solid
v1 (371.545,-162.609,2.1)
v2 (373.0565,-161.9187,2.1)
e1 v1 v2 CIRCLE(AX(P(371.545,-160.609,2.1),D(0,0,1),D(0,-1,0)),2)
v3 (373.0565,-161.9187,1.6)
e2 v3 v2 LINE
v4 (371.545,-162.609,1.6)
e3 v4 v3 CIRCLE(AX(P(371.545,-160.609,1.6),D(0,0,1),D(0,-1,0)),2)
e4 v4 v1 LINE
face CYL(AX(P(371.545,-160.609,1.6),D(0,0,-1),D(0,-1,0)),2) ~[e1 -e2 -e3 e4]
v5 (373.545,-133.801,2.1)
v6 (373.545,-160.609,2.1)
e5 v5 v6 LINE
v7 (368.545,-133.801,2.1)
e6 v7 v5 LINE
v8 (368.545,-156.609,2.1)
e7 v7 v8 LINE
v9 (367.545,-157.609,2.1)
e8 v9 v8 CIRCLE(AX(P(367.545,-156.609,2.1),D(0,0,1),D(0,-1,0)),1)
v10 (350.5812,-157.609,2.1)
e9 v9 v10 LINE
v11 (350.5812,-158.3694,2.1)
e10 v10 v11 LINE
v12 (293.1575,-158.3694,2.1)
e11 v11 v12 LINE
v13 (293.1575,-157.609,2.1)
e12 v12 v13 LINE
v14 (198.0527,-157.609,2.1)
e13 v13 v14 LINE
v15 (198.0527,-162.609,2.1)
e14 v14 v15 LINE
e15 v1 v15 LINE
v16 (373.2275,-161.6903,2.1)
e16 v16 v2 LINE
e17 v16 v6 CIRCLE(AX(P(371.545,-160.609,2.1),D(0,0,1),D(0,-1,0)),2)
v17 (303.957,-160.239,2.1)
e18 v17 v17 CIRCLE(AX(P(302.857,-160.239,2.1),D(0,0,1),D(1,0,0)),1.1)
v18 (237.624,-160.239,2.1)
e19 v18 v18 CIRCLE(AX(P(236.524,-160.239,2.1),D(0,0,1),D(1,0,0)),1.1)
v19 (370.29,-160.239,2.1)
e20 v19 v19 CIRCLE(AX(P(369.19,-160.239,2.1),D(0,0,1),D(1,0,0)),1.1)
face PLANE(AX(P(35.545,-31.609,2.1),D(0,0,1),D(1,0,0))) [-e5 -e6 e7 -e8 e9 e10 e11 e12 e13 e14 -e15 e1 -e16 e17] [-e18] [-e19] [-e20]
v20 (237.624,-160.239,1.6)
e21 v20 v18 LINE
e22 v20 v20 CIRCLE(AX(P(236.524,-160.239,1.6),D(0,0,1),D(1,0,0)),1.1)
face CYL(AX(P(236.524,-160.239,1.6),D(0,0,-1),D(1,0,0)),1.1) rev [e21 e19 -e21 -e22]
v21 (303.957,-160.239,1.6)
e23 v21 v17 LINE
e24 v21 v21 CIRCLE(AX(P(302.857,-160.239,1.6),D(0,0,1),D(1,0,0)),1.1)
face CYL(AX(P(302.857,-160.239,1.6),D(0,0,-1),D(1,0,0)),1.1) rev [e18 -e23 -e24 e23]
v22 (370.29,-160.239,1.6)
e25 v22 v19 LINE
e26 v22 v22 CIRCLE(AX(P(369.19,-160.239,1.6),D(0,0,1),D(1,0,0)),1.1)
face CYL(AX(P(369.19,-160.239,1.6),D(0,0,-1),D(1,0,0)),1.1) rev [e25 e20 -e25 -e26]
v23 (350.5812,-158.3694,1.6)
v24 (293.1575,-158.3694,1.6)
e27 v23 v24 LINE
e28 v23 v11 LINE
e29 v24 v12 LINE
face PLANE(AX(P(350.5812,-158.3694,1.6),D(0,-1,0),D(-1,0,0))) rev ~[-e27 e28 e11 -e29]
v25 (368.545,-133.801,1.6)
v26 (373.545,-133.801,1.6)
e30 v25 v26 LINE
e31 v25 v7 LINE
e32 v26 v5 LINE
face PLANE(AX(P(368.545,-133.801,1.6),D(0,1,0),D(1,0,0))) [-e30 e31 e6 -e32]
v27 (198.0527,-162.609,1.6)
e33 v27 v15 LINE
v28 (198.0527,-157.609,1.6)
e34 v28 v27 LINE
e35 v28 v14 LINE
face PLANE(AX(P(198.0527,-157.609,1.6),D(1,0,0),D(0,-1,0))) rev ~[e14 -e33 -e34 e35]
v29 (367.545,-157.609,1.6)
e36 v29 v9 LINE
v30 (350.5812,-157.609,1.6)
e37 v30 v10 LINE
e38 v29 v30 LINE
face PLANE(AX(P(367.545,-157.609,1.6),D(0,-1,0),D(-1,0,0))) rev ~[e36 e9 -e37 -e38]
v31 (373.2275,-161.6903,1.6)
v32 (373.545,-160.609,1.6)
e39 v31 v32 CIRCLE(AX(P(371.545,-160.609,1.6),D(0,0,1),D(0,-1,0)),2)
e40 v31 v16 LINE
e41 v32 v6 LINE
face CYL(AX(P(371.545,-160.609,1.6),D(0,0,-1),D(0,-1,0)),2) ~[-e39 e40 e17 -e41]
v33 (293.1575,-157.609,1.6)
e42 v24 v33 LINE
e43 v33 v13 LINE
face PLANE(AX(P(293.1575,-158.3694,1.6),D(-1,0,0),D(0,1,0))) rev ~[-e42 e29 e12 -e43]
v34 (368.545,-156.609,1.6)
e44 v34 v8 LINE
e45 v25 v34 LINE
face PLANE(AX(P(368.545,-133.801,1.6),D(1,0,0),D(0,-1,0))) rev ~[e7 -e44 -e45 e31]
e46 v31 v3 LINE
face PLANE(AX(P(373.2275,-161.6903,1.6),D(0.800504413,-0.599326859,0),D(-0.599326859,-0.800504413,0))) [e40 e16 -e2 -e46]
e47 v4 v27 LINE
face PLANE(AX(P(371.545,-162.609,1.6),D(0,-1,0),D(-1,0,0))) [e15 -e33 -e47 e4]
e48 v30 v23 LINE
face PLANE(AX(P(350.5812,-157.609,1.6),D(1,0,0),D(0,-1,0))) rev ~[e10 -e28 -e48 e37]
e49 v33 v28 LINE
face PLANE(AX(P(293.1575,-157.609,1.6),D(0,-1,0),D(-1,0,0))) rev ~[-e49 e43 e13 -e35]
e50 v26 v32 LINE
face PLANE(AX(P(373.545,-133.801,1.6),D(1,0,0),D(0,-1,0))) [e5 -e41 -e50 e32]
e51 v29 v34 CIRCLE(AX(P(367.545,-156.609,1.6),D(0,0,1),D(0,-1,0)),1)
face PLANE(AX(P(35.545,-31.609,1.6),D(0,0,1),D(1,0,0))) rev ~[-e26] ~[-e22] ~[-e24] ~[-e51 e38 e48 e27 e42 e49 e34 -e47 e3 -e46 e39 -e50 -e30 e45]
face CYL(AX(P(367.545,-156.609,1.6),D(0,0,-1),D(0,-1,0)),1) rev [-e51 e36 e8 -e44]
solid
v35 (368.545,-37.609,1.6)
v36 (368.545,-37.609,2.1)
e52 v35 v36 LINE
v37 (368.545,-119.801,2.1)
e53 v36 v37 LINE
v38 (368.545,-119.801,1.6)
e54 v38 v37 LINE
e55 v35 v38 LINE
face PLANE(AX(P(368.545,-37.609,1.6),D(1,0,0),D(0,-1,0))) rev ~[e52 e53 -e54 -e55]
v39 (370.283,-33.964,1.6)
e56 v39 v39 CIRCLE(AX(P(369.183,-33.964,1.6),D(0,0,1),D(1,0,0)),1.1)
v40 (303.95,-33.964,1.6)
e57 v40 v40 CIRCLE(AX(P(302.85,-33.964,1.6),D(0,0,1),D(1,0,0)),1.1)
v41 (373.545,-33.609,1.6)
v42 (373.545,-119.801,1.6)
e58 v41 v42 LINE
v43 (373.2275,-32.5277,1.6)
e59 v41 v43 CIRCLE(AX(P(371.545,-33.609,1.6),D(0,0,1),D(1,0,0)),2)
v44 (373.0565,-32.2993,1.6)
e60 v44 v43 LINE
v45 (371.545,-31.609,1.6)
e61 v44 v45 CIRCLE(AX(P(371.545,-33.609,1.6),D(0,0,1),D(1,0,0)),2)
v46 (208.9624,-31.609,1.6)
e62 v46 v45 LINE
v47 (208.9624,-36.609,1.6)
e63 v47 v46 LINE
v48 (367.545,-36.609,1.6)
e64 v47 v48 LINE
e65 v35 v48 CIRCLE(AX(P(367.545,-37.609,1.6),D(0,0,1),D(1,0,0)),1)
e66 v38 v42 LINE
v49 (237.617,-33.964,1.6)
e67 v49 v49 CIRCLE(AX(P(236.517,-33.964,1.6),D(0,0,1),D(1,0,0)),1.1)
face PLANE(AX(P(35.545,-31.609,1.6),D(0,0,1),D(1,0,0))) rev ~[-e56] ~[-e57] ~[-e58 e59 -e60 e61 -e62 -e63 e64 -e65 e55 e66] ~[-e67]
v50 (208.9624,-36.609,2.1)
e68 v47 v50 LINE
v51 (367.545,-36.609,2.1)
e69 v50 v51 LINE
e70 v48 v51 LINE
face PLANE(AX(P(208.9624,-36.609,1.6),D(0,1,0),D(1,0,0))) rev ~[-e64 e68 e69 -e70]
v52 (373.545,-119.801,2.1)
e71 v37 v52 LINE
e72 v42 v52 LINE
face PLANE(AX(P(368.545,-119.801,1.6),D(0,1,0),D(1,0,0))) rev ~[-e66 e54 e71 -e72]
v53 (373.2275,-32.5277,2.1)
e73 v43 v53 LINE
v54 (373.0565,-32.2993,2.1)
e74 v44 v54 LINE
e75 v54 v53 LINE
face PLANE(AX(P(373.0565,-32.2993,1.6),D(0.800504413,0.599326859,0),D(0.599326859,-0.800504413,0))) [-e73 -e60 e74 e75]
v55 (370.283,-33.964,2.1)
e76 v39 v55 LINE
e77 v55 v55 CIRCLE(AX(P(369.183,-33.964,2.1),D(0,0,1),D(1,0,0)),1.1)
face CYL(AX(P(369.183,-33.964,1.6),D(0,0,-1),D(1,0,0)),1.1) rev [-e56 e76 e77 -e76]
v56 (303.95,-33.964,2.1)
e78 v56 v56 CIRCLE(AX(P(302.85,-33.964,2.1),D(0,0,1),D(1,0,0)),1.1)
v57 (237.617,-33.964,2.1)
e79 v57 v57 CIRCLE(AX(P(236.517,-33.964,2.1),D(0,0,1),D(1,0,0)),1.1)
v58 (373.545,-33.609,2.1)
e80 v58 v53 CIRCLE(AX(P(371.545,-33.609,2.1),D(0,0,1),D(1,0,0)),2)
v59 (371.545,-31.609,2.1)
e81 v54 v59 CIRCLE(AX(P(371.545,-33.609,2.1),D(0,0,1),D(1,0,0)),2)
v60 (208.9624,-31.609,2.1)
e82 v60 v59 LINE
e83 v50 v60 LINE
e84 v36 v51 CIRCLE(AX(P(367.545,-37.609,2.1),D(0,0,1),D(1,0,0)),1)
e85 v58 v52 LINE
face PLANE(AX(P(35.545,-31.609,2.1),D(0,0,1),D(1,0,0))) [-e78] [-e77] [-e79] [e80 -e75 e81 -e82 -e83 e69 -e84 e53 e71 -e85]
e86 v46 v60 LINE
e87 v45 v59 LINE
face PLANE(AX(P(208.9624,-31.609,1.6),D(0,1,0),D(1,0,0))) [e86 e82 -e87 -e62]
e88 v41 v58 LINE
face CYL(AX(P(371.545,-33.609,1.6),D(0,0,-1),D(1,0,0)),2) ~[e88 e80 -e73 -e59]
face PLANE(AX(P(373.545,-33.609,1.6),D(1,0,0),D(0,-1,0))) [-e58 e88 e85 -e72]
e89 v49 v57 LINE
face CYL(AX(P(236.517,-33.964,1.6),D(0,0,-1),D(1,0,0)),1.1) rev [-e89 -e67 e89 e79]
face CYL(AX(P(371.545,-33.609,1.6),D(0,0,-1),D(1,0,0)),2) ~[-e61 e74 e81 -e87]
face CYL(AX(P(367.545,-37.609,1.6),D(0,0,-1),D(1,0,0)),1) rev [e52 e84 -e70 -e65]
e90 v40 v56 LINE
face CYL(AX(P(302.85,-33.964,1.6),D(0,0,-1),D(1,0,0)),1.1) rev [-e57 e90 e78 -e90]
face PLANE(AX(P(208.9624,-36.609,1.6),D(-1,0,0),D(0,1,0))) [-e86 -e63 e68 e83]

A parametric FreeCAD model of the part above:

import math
import FreeCAD as App
import Part
import Sketcher
from FreeCAD import Vector

doc = App.newDocument("Part")
body = doc.addObject("PartDesign::Body", "Body")
body.AllowCompound = True

# Sketch on XY plane
sketch1 = body.newObject("Sketcher::SketchObject", "Sketch")
sketch1.AttachmentSupport = (doc.getObject("XY_Plane"), [""])
sketch1.MapMode = "FlatFace"
sketch1.AttachmentOffset = App.Placement(Vector(0, 0, 1.6), App.Rotation())
sketch1.addGeometry([
    Part.LineSegment(Vector(371.55, -31.61, 0), Vector(208.96, -31.61, 0)),  # 0
    Part.LineSegment(Vector(208.96, -31.61, 0), Vector(208.96, -36.61, 0)),  # 1
    Part.LineSegment(Vector(208.96, -36.61, 0), Vector(367.55, -36.61, 0)),  # 2
    Part.ArcOfCircle(Part.Circle(Vector(367.55, -37.61, 0), Vector(0, 0, 1), 1), math.radians(0), math.radians(90)),  # 3
    Part.LineSegment(Vector(368.55, -37.61, 0), Vector(368.55, -119.8, 0)),  # 4
    Part.LineSegment(Vector(368.55, -119.8, 0), Vector(373.55, -119.8, 0)),  # 5
    Part.LineSegment(Vector(373.55, -119.8, 0), Vector(373.55, -33.61, 0)),  # 6
    Part.ArcOfCircle(Part.Circle(Vector(371.55, -33.61, 0), Vector(0, 0, 1), 2), math.radians(0), math.radians(33)),  # 7
    Part.LineSegment(Vector(373.23, -32.53, 0), Vector(373.06, -32.3, 0)),  # 8
    Part.ArcOfCircle(Part.Circle(Vector(371.55, -33.61, 0), Vector(0, 0, 1), 2), math.radians(41), math.radians(90)),  # 9
    Part.Circle(Vector(236.52, -33.96, 0), Vector(0, 0, 1), 1.1),  # 10
    Part.Circle(Vector(302.85, -33.96, 0), Vector(0, 0, 1), 1.1),  # 11
    Part.Circle(Vector(369.18, -33.96, 0), Vector(0, 0, 1), 1.1),  # 12
    Part.LineSegment(Vector(198.05, -157.61, 0), Vector(198.05, -162.61, 0)),  # 13
    Part.LineSegment(Vector(198.05, -162.61, 0), Vector(371.55, -162.61, 0)),  # 14
    Part.ArcOfCircle(Part.Circle(Vector(371.55, -160.61, 0), Vector(0, 0, 1), 2), math.radians(-90), math.radians(-41)),  # 15
    Part.LineSegment(Vector(373.06, -161.92, 0), Vector(373.23, -161.69, 0)),  # 16
    Part.ArcOfCircle(Part.Circle(Vector(371.55, -160.61, 0), Vector(0, 0, 1), 2), math.radians(-33), math.radians(0)),  # 17
    Part.LineSegment(Vector(373.55, -160.61, 0), Vector(373.55, -133.8, 0)),  # 18
    Part.LineSegment(Vector(373.55, -133.8, 0), Vector(368.55, -133.8, 0)),  # 19
    Part.LineSegment(Vector(368.55, -133.8, 0), Vector(368.55, -156.61, 0)),  # 20
    Part.ArcOfCircle(Part.Circle(Vector(367.55, -156.61, 0), Vector(0, 0, 1), 1), math.radians(-90), math.radians(0)),  # 21
    Part.LineSegment(Vector(367.55, -157.61, 0), Vector(350.58, -157.61, 0)),  # 22
    Part.LineSegment(Vector(350.58, -157.61, 0), Vector(350.58, -158.37, 0)),  # 23
    Part.LineSegment(Vector(350.58, -158.37, 0), Vector(293.16, -158.37, 0)),  # 24
    Part.LineSegment(Vector(293.16, -158.37, 0), Vector(293.16, -157.61, 0)),  # 25
    Part.LineSegment(Vector(293.16, -157.61, 0), Vector(198.05, -157.61, 0)),  # 26
    Part.Circle(Vector(236.52, -160.24, 0), Vector(0, 0, 1), 1.1),  # 27
    Part.Circle(Vector(302.86, -160.24, 0), Vector(0, 0, 1), 1.1),  # 28
    Part.Circle(Vector(369.19, -160.24, 0), Vector(0, 0, 1), 1.1),  # 29
], False)
sketch1.addConstraint([
    Sketcher.Constraint("Coincident", 0, 2, 1, 1),
    Sketcher.Constraint("Coincident", 1, 2, 2, 1),
    Sketcher.Constraint("Tangent", 2, 2, 3, 2),
    Sketcher.Constraint("Tangent", 3, 1, 4, 1),
    Sketcher.Constraint("Coincident", 4, 2, 5, 1),
    Sketcher.Constraint("Coincident", 5, 2, 6, 1),
    Sketcher.Constraint("Tangent", 6, 2, 7, 1),
    Sketcher.Constraint("Coincident", 7, 2, 8, 1),
    Sketcher.Constraint("Coincident", 8, 2, 9, 1),
    Sketcher.Constraint("Tangent", 9, 2, 0, 1),
    Sketcher.Constraint("Coincident", 13, 2, 14, 1),
    Sketcher.Constraint("Tangent", 14, 2, 15, 1),
    Sketcher.Constraint("Coincident", 15, 2, 16, 1),
    Sketcher.Constraint("Coincident", 16, 2, 17, 1),
    Sketcher.Constraint("Tangent", 17, 2, 18, 1),
    Sketcher.Constraint("Coincident", 18, 2, 19, 1),
    Sketcher.Constraint("Coincident", 19, 2, 20, 1),
    Sketcher.Constraint("Tangent", 20, 2, 21, 2),
    Sketcher.Constraint("Tangent", 21, 1, 22, 1),
    Sketcher.Constraint("Coincident", 22, 2, 23, 1),
    Sketcher.Constraint("Coincident", 23, 2, 24, 1),
    Sketcher.Constraint("Coincident", 24, 2, 25, 1),
    Sketcher.Constraint("Coincident", 25, 2, 26, 1),
    Sketcher.Constraint("Coincident", 26, 2, 13, 1),
    Sketcher.Constraint("Horizontal", 0),
    Sketcher.Constraint("Vertical", 1),
    Sketcher.Constraint("Horizontal", 2),
    Sketcher.Constraint("Vertical", 4),
    Sketcher.Constraint("Horizontal", 5),
    Sketcher.Constraint("Vertical", 6),
    Sketcher.Constraint("Vertical", 13),
    Sketcher.Constraint("Horizontal", 14),
    Sketcher.Constraint("Vertical", 18),
    Sketcher.Constraint("Horizontal", 19),
    Sketcher.Constraint("Vertical", 20),
    Sketcher.Constraint("Horizontal", 22),
    Sketcher.Constraint("Vertical", 23),
    Sketcher.Constraint("Horizontal", 24),
    Sketcher.Constraint("Vertical", 25),
    Sketcher.Constraint("Horizontal", 26),
    Sketcher.Constraint("Coincident", 9, 3, 7, 3),
    Sketcher.Constraint("Coincident", 17, 3, 15, 3),
    Sketcher.Constraint("Equal", 7, 9),
    Sketcher.Constraint("Equal", 10, 11),
    Sketcher.Constraint("Equal", 11, 12),
    Sketcher.Constraint("Equal", 9, 15),
    Sketcher.Constraint("Equal", 15, 17),
    Sketcher.Constraint("Equal", 3, 21),
    Sketcher.Constraint("Equal", 12, 27),
    Sketcher.Constraint("Equal", 27, 28),
    Sketcher.Constraint("Equal", 28, 29),
    Sketcher.Constraint("Horizontal", 10, 3, 11, 3),
    Sketcher.Constraint("Horizontal", 11, 3, 12, 3),
    Sketcher.Constraint("Horizontal", 27, 3, 28, 3),
    Sketcher.Constraint("Horizontal", 28, 3, 29, 3),
    Sketcher.Constraint("Horizontal", 22, 2, 25, 2),
    Sketcher.Constraint("Vertical", 9, 3, 15, 3),
    Sketcher.Constraint("Vertical", 3, 3, 21, 3),
    Sketcher.Constraint("Vertical", 8, 2, 15, 2),
    Sketcher.Constraint("Vertical", 7, 2, 16, 2),
    Sketcher.Constraint("Equal", 19, 1),
    Sketcher.Constraint("Equal", 1, 13),
    Sketcher.Constraint("Radius", 3, 1.0),
    Sketcher.Constraint("DistanceX", 5, 1, 5, 2, 5.0),
    Sketcher.Constraint("Radius", 7, 2.0),
    Sketcher.Constraint("Diameter", 10, 2.2),
    Sketcher.Constraint("DistanceY", 15, 3, 3, 3, 123.0),
    Sketcher.Constraint("DistanceY", 18, 2, 5, 2, 14.0),
    Sketcher.Constraint("DistanceY", 4, 2, 4, 1, 82.192),
    Sketcher.Constraint("DistanceX", -1, 1, 11, 3, 302.85),
    Sketcher.Constraint("DistanceX", -1, 1, 29, 3, 369.19),
    Sketcher.Constraint("DistanceY", 27, 3, 21, 3, 3.63),
    Sketcher.Constraint("DistanceX", 0, 2, 0, 1, 162.5826),
    Sketcher.Constraint("DistanceX", 14, 1, 14, 2, 173.4923),
    Sketcher.Constraint("DistanceX", 22, 2, 22, 1, 16.9638),
    Sketcher.Constraint("DistanceX", 24, 2, 24, 1, 57.4237),
    Sketcher.Constraint("DistanceY", 23, 2, 23, 1, 0.7604),
    Sketcher.Constraint("DistanceX", -1, 1, 3, 3, 367.545),
    Sketcher.Constraint("DistanceY", 3, 3, -1, 1, 37.609),
    Sketcher.Constraint("DistanceX", -1, 1, 10, 3, 236.517),
    Sketcher.Constraint("DistanceY", 10, 3, -1, 1, 33.964),
    Sketcher.Constraint("DistanceX", -1, 1, 12, 3, 369.183),
    Sketcher.Constraint("DistanceX", -1, 1, 27, 3, 236.524),
    Sketcher.Constraint("DistanceX", -1, 1, 28, 3, 302.857),
    Sketcher.Constraint("DistanceX", 8, 2, 7, 2, 0.171),
    Sketcher.Constraint("Distance", 8, 0.2853),
])
pad1 = body.newObject("PartDesign::Pad", "Pad")
pad1.Profile = sketch1
pad1.Length = 0.5

doc.recompute()
